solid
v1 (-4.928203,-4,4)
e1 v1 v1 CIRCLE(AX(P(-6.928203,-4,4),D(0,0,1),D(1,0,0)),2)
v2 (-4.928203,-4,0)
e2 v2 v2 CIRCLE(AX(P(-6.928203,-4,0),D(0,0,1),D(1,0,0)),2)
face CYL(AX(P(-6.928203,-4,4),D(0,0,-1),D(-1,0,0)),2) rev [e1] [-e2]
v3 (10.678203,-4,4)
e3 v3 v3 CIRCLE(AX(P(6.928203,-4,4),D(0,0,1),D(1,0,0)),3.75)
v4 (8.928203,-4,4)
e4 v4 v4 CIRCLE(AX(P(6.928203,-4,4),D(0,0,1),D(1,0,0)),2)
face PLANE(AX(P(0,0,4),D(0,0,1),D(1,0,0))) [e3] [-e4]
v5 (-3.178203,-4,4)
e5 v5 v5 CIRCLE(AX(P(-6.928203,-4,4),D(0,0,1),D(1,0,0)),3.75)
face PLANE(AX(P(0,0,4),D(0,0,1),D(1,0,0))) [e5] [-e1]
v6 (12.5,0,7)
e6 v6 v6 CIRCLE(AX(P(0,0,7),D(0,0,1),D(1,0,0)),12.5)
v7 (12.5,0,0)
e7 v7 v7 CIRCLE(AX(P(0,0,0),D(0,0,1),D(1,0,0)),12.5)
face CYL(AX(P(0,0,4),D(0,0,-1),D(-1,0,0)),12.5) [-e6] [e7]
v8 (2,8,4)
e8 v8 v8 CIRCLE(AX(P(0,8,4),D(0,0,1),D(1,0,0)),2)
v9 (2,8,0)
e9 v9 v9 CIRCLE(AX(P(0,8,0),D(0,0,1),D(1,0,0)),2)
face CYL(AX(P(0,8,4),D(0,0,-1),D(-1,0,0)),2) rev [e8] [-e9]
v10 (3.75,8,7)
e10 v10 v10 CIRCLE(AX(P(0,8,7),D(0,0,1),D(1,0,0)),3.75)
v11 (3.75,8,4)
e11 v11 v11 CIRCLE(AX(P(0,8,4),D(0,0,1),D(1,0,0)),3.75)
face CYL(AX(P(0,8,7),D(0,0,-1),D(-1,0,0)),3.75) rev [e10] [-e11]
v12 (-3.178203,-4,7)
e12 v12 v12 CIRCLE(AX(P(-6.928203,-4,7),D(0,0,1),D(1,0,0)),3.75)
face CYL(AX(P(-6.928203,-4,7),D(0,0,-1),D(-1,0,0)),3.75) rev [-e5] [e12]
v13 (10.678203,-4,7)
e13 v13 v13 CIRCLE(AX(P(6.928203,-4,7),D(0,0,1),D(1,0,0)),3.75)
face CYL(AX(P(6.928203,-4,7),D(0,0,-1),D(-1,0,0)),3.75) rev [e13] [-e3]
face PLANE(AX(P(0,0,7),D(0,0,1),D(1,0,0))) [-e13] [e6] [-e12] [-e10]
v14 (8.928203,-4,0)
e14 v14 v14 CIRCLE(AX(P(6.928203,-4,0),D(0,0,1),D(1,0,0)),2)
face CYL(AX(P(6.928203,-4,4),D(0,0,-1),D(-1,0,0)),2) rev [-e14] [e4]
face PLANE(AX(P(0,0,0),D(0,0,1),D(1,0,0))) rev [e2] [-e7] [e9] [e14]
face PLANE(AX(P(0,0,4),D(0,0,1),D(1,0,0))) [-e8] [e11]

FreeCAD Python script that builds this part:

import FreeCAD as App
import Part
import Sketcher
Q = App.Units.Quantity

doc = App.newDocument("Part")
body = doc.addObject("PartDesign::Body", "Body")

sketch1 = body.newObject("Sketcher::SketchObject", "Sketch")
sketch1.AttachmentSupport = (doc.getObject("XY_Plane"), [""])
sketch1.MapMode = "FlatFace"
sketch1.addGeometry(Part.Circle(App.Vector(0, 0, 0), App.Vector(0, 0, 1), 12.5), False)
sketch1.addGeometry(Part.Circle(App.Vector(-6.928203, -4, 0), App.Vector(0, 0, 1), 2), False)
sketch1.addGeometry(Part.Circle(App.Vector(6.928203, -4, 0), App.Vector(0, 0, 1), 2), False)
sketch1.addGeometry(Part.Circle(App.Vector(0, 8, 0), App.Vector(0, 0, 1), 2), False)
sketch1.addConstraint(Sketcher.Constraint("Coincident", 0, 3, -1, 1))
sketch1.addConstraint(Sketcher.Constraint("Equal", 1, 2))
sketch1.addConstraint(Sketcher.Constraint("Equal", 2, 3))
sketch1.addConstraint(Sketcher.Constraint("Symmetric", 1, 3, 2, 3, -2))
sketch1.addConstraint(Sketcher.Constraint("PointOnObject", 3, 3, -2))
sketch1.addConstraint(Sketcher.Constraint("Diameter", 0, Q("25 mm")))
sketch1.addConstraint(Sketcher.Constraint("Diameter", 1, Q("4 mm")))
sketch1.addConstraint(Sketcher.Constraint("DistanceY", 1, 3, -1, 1, Q("4 mm")))
sketch1.addConstraint(Sketcher.Constraint("DistanceY", -1, 1, 3, 3, Q("8 mm")))
sketch1.addConstraint(Sketcher.Constraint("DistanceX", 1, 3, -1, 1, Q("6.928203 mm")))
pad1 = body.newObject("PartDesign::Pad", "Pad")
pad1.Profile = sketch1
pad1.Length = 4

sketch2 = body.newObject("Sketcher::SketchObject", "Sketch001")
sketch2.AttachmentSupport = (doc.getObject("XY_Plane"), [""])
sketch2.MapMode = "FlatFace"
sketch2.AttachmentOffset = App.Placement(App.Vector(0, 0, 4), App.Rotation())
sketch2.addGeometry(Part.Circle(App.Vector(0, 0, 0), App.Vector(0, 0, 1), 12.5), False)
sketch2.addGeometry(Part.Circle(App.Vector(-6.928203, -4, 0), App.Vector(0, 0, 1), 3.75), False)
sketch2.addGeometry(Part.Circle(App.Vector(6.928203, -4, 0), App.Vector(0, 0, 1), 3.75), False)
sketch2.addGeometry(Part.Circle(App.Vector(0, 8, 0), App.Vector(0, 0, 1), 3.75), False)
sketch2.addConstraint(Sketcher.Constraint("Coincident", 0, 3, -1, 1))
sketch2.addConstraint(Sketcher.Constraint("Equal", 1, 2))
sketch2.addConstraint(Sketcher.Constraint("Equal", 2, 3))
sketch2.addConstraint(Sketcher.Constraint("Symmetric", 1, 3, 2, 3, -2))
sketch2.addConstraint(Sketcher.Constraint("PointOnObject", 3, 3, -2))
sketch2.addConstraint(Sketcher.Constraint("Diameter", 0, Q("25 mm")))
sketch2.addConstraint(Sketcher.Constraint("Diameter", 1, Q("7.5 mm")))
sketch2.addConstraint(Sketcher.Constraint("DistanceY", 1, 3, -1, 1, Q("4 mm")))
sketch2.addConstraint(Sketcher.Constraint("DistanceY", -1, 1, 3, 3, Q("8 mm")))
sketch2.addConstraint(Sketcher.Constraint("DistanceX", 1, 3, -1, 1, Q("6.928203 mm")))
pad2 = body.newObject("PartDesign::Pad", "Pad001")
pad2.Profile = sketch2
pad2.Length = 3

doc.recompute()
